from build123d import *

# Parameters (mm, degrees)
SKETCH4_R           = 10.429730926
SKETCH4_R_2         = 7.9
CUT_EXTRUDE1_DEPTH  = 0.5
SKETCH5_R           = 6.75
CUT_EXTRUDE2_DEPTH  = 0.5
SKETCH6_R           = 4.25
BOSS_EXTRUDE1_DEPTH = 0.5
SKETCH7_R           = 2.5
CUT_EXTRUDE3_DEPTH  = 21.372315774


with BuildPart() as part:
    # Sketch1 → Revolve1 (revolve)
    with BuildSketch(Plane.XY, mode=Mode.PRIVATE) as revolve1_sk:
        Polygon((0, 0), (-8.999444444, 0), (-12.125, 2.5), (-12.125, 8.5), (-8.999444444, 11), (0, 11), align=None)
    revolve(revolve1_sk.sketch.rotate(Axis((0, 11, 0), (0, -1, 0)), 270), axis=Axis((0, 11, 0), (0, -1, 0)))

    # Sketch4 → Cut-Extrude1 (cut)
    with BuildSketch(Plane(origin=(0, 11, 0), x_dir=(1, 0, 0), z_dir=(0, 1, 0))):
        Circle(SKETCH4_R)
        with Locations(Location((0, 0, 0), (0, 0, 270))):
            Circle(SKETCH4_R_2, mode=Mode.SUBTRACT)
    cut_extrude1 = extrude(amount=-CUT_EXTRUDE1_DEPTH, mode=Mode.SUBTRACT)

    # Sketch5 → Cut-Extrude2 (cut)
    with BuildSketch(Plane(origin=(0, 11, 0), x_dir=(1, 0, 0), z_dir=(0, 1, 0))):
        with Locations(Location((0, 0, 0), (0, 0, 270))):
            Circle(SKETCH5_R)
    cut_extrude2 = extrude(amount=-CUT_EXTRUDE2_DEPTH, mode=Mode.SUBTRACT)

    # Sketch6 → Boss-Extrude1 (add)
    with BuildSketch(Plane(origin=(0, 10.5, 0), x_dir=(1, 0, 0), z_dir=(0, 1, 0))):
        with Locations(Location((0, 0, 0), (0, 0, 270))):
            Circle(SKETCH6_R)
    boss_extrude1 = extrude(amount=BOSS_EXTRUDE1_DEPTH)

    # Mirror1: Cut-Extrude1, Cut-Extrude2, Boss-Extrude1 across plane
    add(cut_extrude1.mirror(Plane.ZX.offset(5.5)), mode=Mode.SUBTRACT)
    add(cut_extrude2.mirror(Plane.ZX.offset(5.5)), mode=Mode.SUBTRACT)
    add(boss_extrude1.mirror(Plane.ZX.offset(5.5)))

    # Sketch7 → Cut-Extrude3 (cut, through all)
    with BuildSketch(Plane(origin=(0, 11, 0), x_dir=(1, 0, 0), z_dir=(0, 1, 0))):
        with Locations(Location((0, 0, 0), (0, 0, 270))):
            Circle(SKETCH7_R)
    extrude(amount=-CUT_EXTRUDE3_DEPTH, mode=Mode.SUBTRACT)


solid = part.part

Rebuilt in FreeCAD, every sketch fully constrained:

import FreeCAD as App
import Part
import Sketcher

V = App.Vector


def add_polygon(sketch, points):
    """Adds a closed chain of lines whose ends are joined by coincident constraints."""
    first, n = sketch.GeometryCount, len(points)
    for a, b in zip(points, points[1:] + points[:1]):
        sketch.addGeometry(Part.LineSegment(App.Vector(*a, 0), App.Vector(*b, 0)), False)
    for i in range(n):
        sketch.addConstraint(Sketcher.Constraint("Coincident", first + i, 2, first + (i + 1) % n, 1))

doc = App.newDocument("Part")
body = doc.addObject("PartDesign::Body", "Body")

# Sketch on XY plane
sketch1 = doc.addObject("Sketcher::SketchObject", "Sketch")
body.addObject(sketch1)
sketch1.AttachmentSupport = (doc.XY_Plane, [""])
sketch1.MapMode = "FlatFace"
add_polygon(sketch1, [(-9, 0), (0, 0), (0, 11), (-9, 11), (-12.1, 8.5), (-12.1, 2.5)])  # lines 0-5
sketch1.addConstraint([
    Sketcher.Constraint("Horizontal", 0),
    Sketcher.Constraint("Vertical", 1),
    Sketcher.Constraint("Horizontal", 2),
    Sketcher.Constraint("Vertical", 4),
    Sketcher.Constraint("Coincident", 0, 2, -1, 1),
    Sketcher.Constraint("Vertical", 2, 2, 5, 2),
    Sketcher.Constraint("Equal", 3, 5),
    Sketcher.Constraint("DistanceY", 1, 1, 1, 2, 11.0),
    Sketcher.Constraint("DistanceY", 4, 2, 4, 1, 6.0),
    Sketcher.Constraint("DistanceX", 3, 2, -1, 1, 12.125),
    Sketcher.Constraint("DistanceX", 0, 1, 0, 2, 8.999444),
])
revolution = doc.addObject("PartDesign::Revolution", "Revolution")
body.addObject(revolution)
revolution.Profile = sketch1
revolution.ReferenceAxis = (sketch1, ["V_Axis"])
revolution.Angle = 360

# Sketch on XZ plane
sketch2 = doc.addObject("Sketcher::SketchObject", "Sketch001")
body.addObject(sketch2)
sketch2.AttachmentSupport = (doc.XZ_Plane, [""])
sketch2.MapMode = "FlatFace"
sketch2.AttachmentOffset = App.Placement(V(0, 0, -11), App.Rotation())
sketch2.addGeometry([
    Part.Circle(V(0, 0, 0), V(0, 0, 1), 10),
    Part.Circle(V(0, 0, 0), V(0, 0, 1), 8),
], False)
sketch2.addConstraint([
    Sketcher.Constraint("Coincident", 0, 3, -1, 1),
    Sketcher.Constraint("Coincident", 1, 3, -1, 1),
    Sketcher.Constraint("Diameter", 1, 15.8),
    Sketcher.Constraint("Diameter", 0, 20.859462),
])
pocket1 = doc.addObject("PartDesign::Pocket", "Pocket")
body.addObject(pocket1)
pocket1.Profile = sketch2
pocket1.Length = 0.5
pocket1.Reversed = True

# Sketch on XZ plane
sketch3 = doc.addObject("Sketcher::SketchObject", "Sketch002")
body.addObject(sketch3)
sketch3.AttachmentSupport = (doc.XZ_Plane, [""])
sketch3.MapMode = "FlatFace"
sketch3.AttachmentOffset = App.Placement(V(0, 0, -11), App.Rotation())
sketch3.addGeometry(Part.Circle(V(0, 0, 0), V(0, 0, 1), 7), False)
sketch3.addConstraint([
    Sketcher.Constraint("Coincident", 0, 3, -1, 1),
    Sketcher.Constraint("Diameter", 0, 13.5),
])
pocket2 = doc.addObject("PartDesign::Pocket", "Pocket001")
body.addObject(pocket2)
pocket2.Profile = sketch3
pocket2.Length = 0.5
pocket2.Reversed = True

# Sketch on XZ plane
sketch4 = doc.addObject("Sketcher::SketchObject", "Sketch003")
body.addObject(sketch4)
sketch4.AttachmentSupport = (doc.XZ_Plane, [""])
sketch4.MapMode = "FlatFace"
sketch4.AttachmentOffset = App.Placement(V(0, 0, -10.5), App.Rotation())
sketch4.addGeometry(Part.Circle(V(0, 0, 0), V(0, 0, 1), 4.2), False)
sketch4.addConstraint([
    Sketcher.Constraint("Coincident", 0, 3, -1, 1),
    Sketcher.Constraint("Diameter", 0, 8.5),
])
pad1 = doc.addObject("PartDesign::Pad", "Pad")
body.addObject(pad1)
pad1.Profile = sketch4
pad1.Length = 0.5
pad1.Reversed = True
doc.recompute()

datumplane = doc.addObject("PartDesign::Plane", "DatumPlane")
body.addObject(datumplane)
datumplane.AttachmentSupport = (doc.XZ_Plane, [""])
datumplane.MapMode = "FlatFace"
datumplane.AttachmentOffset = App.Placement(V(0, 0, -5.5), App.Rotation())
mirrored = doc.addObject("PartDesign::Mirrored", "Mirrored")
body.addObject(mirrored)
mirrored.Originals = [pocket1, pocket2, pad1]
mirrored.MirrorPlane = (datumplane, [""])
body.Tip = mirrored

# Sketch on XZ plane
sketch5 = doc.addObject("Sketcher::SketchObject", "Sketch004")
body.addObject(sketch5)
sketch5.AttachmentSupport = (doc.XZ_Plane, [""])
sketch5.MapMode = "FlatFace"
sketch5.AttachmentOffset = App.Placement(V(0, 0, -11), App.Rotation())
sketch5.addGeometry(Part.Circle(V(0, 0, 0), V(0, 0, 1), 2.5), False)
sketch5.addConstraint([
    Sketcher.Constraint("Coincident", 0, 3, -1, 1),
    Sketcher.Constraint("Diameter", 0, 5.0),
])
pocket3 = doc.addObject("PartDesign::Pocket", "Pocket002")
body.addObject(pocket3)
pocket3.Profile = sketch5
pocket3.Type = "ThroughAll"
pocket3.Reversed = True

doc.recompute()
